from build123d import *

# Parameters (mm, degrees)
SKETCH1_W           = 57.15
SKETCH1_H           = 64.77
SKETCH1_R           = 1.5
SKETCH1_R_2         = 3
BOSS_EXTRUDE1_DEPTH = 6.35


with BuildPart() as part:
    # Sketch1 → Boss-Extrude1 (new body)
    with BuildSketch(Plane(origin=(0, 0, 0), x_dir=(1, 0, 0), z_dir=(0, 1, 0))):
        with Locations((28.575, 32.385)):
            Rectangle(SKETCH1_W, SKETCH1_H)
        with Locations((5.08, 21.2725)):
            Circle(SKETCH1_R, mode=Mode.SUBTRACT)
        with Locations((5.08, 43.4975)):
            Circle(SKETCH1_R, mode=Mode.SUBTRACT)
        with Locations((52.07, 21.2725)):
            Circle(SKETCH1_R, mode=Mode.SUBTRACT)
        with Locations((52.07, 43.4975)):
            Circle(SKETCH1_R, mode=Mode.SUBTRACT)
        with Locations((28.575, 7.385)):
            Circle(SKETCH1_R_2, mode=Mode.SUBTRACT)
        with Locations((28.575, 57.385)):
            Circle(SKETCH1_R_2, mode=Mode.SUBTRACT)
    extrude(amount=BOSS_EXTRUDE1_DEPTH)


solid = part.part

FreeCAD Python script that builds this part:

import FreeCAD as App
import Part
import Sketcher
Q = App.Units.Quantity

doc = App.newDocument("Part")
body = doc.addObject("PartDesign::Body", "Body")

# Sketch on XZ plane
sketch1 = body.newObject("Sketcher::SketchObject", "Sketch")
sketch1.AttachmentSupport = (doc.getObject("XZ_Plane"), [""])
sketch1.MapMode = "FlatFace"
sketch1.addGeometry(Part.LineSegment(App.Vector(0, -64.8, 0), App.Vector(0, 0, 0)), False)
sketch1.addGeometry(Part.LineSegment(App.Vector(0, 0, 0), App.Vector(57.1, 0, 0)), False)
sketch1.addGeometry(Part.LineSegment(App.Vector(57.1, 0, 0), App.Vector(57.1, -64.8, 0)), False)
sketch1.addGeometry(Part.LineSegment(App.Vector(57.1, -64.8, 0), App.Vector(0, -64.8, 0)), False)
sketch1.addGeometry(Part.Circle(App.Vector(28.6, -7.4, 0), App.Vector(0, 0, 1), 3), False)
sketch1.addGeometry(Part.Circle(App.Vector(5.1, -21.3, 0), App.Vector(0, 0, 1), 1.5), False)
sketch1.addGeometry(Part.Circle(App.Vector(52.1, -21.3, 0), App.Vector(0, 0, 1), 1.5), False)
sketch1.addGeometry(Part.Circle(App.Vector(5.1, -43.5, 0), App.Vector(0, 0, 1), 1.5), False)
sketch1.addGeometry(Part.Circle(App.Vector(28.6, -57.4, 0), App.Vector(0, 0, 1), 3), False)
sketch1.addGeometry(Part.Circle(App.Vector(52.1, -43.5, 0), App.Vector(0, 0, 1), 1.5), False)
sketch1.addConstraint(Sketcher.Constraint("Coincident", 0, 2, 1, 1))
sketch1.addConstraint(Sketcher.Constraint("Coincident", 1, 2, 2, 1))
sketch1.addConstraint(Sketcher.Constraint("Coincident", 2, 2, 3, 1))
sketch1.addConstraint(Sketcher.Constraint("Coincident", 3, 2, 0, 1))
sketch1.addConstraint(Sketcher.Constraint("Vertical", 0))
sketch1.addConstraint(Sketcher.Constraint("Horizontal", 1))
sketch1.addConstraint(Sketcher.Constraint("Vertical", 2))
sketch1.addConstraint(Sketcher.Constraint("Horizontal", 3))
sketch1.addConstraint(Sketcher.Constraint("Coincident", 0, 2, -1, 1))
sketch1.addConstraint(Sketcher.Constraint("Equal", 5, 6))
sketch1.addConstraint(Sketcher.Constraint("Equal", 6, 7))
sketch1.addConstraint(Sketcher.Constraint("Equal", 4, 8))
sketch1.addConstraint(Sketcher.Constraint("Equal", 7, 9))
sketch1.addConstraint(Sketcher.Constraint("Horizontal", 5, 3, 6, 3))
sketch1.addConstraint(Sketcher.Constraint("Horizontal", 7, 3, 9, 3))
sketch1.addConstraint(Sketcher.Constraint("Vertical", 5, 3, 7, 3))
sketch1.addConstraint(Sketcher.Constraint("Vertical", 4, 3, 8, 3))
sketch1.addConstraint(Sketcher.Constraint("Vertical", 6, 3, 9, 3))
sketch1.addConstraint(Sketcher.Constraint("DistanceX", 1, 1, 1, 2, Q("2.25 in")))
sketch1.addConstraint(Sketcher.Constraint("DistanceY", 0, 1, 0, 2, Q("2.55 in")))
sketch1.addConstraint(Sketcher.Constraint("DistanceX", -1, 1, 5, 3, Q("0.2 in")))
sketch1.addConstraint(Sketcher.Constraint("DistanceX", 6, 3, 1, 2, Q("0.2 in")))
sketch1.addConstraint(Sketcher.Constraint("Diameter", 4, Q("6 mm")))
sketch1.addConstraint(Sketcher.Constraint("Diameter", 5, Q("3 mm")))
sketch1.addConstraint(Sketcher.Constraint("DistanceX", -1, 1, 4, 3, Q("1.125 in")))
sketch1.addConstraint(Sketcher.Constraint("DistanceY", 7, 3, 5, 3, Q("0.875 in")))
sketch1.addConstraint(Sketcher.Constraint("DistanceY", 5, 3, -1, 1, Q("0.8375 in")))
sketch1.addConstraint(Sketcher.Constraint("DistanceY", 4, 3, -1, 1, Q("7.385 mm")))
sketch1.addConstraint(Sketcher.Constraint("DistanceY", 8, 3, -1, 1, Q("57.385 mm")))
pad1 = body.newObject("PartDesign::Pad", "Pad")
pad1.Profile = sketch1
pad1.Length = Q("0.25 in")
pad1.Reversed = True

doc.recompute()
